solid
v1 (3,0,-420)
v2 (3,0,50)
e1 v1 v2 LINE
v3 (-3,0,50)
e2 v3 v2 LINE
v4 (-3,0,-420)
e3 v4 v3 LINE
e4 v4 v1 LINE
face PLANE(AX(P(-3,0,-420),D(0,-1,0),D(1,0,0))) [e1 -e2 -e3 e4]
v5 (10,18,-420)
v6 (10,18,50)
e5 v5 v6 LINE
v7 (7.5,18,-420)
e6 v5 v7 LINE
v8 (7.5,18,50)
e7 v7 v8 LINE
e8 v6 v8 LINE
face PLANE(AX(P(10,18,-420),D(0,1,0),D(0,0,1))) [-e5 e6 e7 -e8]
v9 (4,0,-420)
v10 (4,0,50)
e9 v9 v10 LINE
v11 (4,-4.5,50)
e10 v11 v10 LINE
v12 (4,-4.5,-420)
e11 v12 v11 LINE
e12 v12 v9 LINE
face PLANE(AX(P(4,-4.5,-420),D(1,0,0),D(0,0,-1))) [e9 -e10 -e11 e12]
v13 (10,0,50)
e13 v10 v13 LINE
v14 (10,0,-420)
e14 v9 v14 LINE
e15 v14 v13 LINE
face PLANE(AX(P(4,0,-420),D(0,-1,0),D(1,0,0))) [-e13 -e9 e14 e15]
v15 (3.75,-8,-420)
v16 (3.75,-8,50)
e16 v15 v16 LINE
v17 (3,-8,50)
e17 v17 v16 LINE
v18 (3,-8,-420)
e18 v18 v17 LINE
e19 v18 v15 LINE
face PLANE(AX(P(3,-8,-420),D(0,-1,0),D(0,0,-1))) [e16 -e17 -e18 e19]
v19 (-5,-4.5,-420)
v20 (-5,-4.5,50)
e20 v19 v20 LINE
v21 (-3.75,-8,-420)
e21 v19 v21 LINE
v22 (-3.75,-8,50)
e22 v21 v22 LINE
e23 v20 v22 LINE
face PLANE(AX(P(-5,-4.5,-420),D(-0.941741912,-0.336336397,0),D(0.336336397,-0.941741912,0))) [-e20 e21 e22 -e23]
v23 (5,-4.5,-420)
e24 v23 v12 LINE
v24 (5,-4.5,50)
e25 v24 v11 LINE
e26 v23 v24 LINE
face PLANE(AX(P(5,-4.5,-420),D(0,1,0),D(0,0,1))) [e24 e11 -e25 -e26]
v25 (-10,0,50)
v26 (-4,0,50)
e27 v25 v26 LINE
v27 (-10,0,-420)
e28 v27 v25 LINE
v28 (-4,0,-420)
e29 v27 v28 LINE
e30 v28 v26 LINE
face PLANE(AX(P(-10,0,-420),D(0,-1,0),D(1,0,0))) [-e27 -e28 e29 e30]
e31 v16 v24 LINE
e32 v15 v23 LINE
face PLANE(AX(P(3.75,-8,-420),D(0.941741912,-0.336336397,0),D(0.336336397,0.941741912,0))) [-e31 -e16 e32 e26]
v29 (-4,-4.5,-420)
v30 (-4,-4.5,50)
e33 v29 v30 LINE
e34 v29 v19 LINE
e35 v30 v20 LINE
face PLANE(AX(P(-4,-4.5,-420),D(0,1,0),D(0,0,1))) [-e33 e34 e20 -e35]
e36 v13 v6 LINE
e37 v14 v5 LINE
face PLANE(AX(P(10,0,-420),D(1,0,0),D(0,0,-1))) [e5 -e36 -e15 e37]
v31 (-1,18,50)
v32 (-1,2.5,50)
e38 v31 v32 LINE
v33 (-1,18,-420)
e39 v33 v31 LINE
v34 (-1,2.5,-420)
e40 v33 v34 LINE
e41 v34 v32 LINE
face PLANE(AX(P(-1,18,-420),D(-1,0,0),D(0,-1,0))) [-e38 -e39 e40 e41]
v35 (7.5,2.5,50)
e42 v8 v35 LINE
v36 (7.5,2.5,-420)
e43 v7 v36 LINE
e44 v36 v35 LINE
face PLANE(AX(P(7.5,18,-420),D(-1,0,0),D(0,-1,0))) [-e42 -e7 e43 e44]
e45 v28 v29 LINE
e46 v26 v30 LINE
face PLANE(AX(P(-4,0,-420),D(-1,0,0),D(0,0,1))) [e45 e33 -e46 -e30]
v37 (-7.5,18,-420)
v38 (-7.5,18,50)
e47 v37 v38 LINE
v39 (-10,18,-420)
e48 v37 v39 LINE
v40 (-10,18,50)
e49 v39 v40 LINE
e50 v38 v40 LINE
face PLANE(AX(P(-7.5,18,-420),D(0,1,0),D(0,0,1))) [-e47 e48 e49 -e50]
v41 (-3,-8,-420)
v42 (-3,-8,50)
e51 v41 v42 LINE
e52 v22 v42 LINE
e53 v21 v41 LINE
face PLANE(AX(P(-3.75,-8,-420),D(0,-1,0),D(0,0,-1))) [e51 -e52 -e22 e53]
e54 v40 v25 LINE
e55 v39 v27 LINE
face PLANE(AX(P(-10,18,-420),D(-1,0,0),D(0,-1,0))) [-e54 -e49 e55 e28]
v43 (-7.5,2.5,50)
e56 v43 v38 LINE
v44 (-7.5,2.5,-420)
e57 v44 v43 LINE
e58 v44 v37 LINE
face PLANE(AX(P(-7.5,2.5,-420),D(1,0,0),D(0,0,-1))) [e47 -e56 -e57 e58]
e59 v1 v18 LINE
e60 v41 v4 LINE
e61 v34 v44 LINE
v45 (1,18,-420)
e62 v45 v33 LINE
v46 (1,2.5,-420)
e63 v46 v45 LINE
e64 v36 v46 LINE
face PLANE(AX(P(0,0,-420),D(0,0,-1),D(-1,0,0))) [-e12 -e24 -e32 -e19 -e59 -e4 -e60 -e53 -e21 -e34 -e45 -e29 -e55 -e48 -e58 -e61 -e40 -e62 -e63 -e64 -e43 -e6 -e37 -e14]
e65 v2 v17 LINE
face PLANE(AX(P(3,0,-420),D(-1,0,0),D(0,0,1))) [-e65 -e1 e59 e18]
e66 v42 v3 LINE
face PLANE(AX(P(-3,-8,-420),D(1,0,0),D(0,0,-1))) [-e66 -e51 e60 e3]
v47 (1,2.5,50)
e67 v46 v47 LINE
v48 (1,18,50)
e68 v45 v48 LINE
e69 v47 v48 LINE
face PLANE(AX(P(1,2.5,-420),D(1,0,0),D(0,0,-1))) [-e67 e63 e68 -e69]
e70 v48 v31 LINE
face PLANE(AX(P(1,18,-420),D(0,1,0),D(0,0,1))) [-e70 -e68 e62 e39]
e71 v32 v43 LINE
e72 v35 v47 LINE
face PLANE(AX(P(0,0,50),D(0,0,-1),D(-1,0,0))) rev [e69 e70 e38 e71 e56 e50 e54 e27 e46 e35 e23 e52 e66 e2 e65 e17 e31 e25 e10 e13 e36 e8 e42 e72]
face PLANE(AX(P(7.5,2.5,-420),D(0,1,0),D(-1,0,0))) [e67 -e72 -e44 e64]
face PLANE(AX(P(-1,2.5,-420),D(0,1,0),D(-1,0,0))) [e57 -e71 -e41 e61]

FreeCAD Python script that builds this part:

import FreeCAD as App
import Part
import Sketcher


def add_polygon(sketch, points):
    """Adds a closed chain of lines whose ends are joined by coincident constraints."""
    first, n = sketch.GeometryCount, len(points)
    for a, b in zip(points, points[1:] + points[:1]):
        sketch.addGeometry(Part.LineSegment(App.Vector(*a, 0), App.Vector(*b, 0)), False)
    for i in range(n):
        sketch.addConstraint(Sketcher.Constraint("Coincident", first + i, 2, first + (i + 1) % n, 1))

doc = App.newDocument("Part")
body = doc.addObject("PartDesign::Body", "Body")

# Sketch on XY plane
sketch1 = doc.addObject("Sketcher::SketchObject", "Sketch")
body.addObject(sketch1)
sketch1.AttachmentSupport = (doc.XY_Plane, [""])
sketch1.MapMode = "FlatFace"
sketch1.AttachmentOffset = App.Placement(App.Vector(0, 0, 50), App.Rotation())
add_polygon(sketch1, [(-1, 2.5), (-7.5, 2.5), (-7.5, 18), (-10, 18), (-10, 0), (-4, 0), (-4, -4.5), (-5, -4.5), (-3.8, -8), (-3, -8), (-3, 0), (3, 0), (3, -8), (3.8, -8), (5, -4.5), (4, -4.5), (4, 0), (10, 0), (10, 18), (7.5, 18), (7.5, 2.5), (1, 2.5), (1, 18), (-1, 18)])  # lines 0-23
sketch1.addConstraint([
    Sketcher.Constraint("Horizontal", 0),
    Sketcher.Constraint("Vertical", 1),
    Sketcher.Constraint("Horizontal", 2),
    Sketcher.Constraint("Vertical", 3),
    Sketcher.Constraint("Horizontal", 4),
    Sketcher.Constraint("Vertical", 5),
    Sketcher.Constraint("Horizontal", 6),
    Sketcher.Constraint("Horizontal", 8),
    Sketcher.Constraint("Vertical", 9),
    Sketcher.Constraint("Horizontal", 10),
    Sketcher.Constraint("Vertical", 11),
    Sketcher.Constraint("Horizontal", 12),
    Sketcher.Constraint("Horizontal", 14),
    Sketcher.Constraint("Vertical", 15),
    Sketcher.Constraint("Horizontal", 16),
    Sketcher.Constraint("Vertical", 17),
    Sketcher.Constraint("Horizontal", 18),
    Sketcher.Constraint("Vertical", 19),
    Sketcher.Constraint("Horizontal", 20),
    Sketcher.Constraint("Vertical", 21),
    Sketcher.Constraint("Horizontal", 22),
    Sketcher.Constraint("Vertical", 23),
    Sketcher.Constraint("Symmetric", 9, 2, 10, 2, -1, 1),
    Sketcher.Constraint("Symmetric", 4, 2, 15, 2, -1, 1),
    Sketcher.Constraint("Symmetric", 7, 2, 12, 2, -2),
    Sketcher.Constraint("Symmetric", 6, 2, 13, 2, -2),
    Sketcher.Constraint("Symmetric", 3, 2, 16, 2, -2),
    Sketcher.Constraint("Symmetric", 1, 2, 18, 2, -2),
    Sketcher.Constraint("Symmetric", 20, 2, 23, 2, -2),
    Sketcher.Constraint("Horizontal", 18, 2, 21, 2),
    Sketcher.Constraint("Equal", 4, 10),
    Sketcher.Constraint("DistanceX", 4, 1, 4, 2, 6.0),
    Sketcher.Constraint("DistanceX", 6, 2, 6, 1, 1.0),
    Sketcher.Constraint("DistanceX", 22, 2, 22, 1, 2.0),
    Sketcher.Constraint("DistanceY", 3, 2, 3, 1, 18.0),
    Sketcher.Constraint("DistanceY", 9, 1, 9, 2, 8.0),
    Sketcher.Constraint("DistanceX", 0, 2, 0, 1, 6.5),
    Sketcher.Constraint("DistanceX", 2, 2, 2, 1, 2.5),
    Sketcher.Constraint("DistanceY", 1, 1, 1, 2, 15.5),
    Sketcher.Constraint("DistanceY", 5, 2, 5, 1, 4.5),
    Sketcher.Constraint("DistanceX", 8, 1, 8, 2, 0.75),
])
pad1 = doc.addObject("PartDesign::Pad", "Pad")
body.addObject(pad1)
pad1.Profile = sketch1
pad1.Length = 470
pad1.Reversed = True

doc.recompute()
